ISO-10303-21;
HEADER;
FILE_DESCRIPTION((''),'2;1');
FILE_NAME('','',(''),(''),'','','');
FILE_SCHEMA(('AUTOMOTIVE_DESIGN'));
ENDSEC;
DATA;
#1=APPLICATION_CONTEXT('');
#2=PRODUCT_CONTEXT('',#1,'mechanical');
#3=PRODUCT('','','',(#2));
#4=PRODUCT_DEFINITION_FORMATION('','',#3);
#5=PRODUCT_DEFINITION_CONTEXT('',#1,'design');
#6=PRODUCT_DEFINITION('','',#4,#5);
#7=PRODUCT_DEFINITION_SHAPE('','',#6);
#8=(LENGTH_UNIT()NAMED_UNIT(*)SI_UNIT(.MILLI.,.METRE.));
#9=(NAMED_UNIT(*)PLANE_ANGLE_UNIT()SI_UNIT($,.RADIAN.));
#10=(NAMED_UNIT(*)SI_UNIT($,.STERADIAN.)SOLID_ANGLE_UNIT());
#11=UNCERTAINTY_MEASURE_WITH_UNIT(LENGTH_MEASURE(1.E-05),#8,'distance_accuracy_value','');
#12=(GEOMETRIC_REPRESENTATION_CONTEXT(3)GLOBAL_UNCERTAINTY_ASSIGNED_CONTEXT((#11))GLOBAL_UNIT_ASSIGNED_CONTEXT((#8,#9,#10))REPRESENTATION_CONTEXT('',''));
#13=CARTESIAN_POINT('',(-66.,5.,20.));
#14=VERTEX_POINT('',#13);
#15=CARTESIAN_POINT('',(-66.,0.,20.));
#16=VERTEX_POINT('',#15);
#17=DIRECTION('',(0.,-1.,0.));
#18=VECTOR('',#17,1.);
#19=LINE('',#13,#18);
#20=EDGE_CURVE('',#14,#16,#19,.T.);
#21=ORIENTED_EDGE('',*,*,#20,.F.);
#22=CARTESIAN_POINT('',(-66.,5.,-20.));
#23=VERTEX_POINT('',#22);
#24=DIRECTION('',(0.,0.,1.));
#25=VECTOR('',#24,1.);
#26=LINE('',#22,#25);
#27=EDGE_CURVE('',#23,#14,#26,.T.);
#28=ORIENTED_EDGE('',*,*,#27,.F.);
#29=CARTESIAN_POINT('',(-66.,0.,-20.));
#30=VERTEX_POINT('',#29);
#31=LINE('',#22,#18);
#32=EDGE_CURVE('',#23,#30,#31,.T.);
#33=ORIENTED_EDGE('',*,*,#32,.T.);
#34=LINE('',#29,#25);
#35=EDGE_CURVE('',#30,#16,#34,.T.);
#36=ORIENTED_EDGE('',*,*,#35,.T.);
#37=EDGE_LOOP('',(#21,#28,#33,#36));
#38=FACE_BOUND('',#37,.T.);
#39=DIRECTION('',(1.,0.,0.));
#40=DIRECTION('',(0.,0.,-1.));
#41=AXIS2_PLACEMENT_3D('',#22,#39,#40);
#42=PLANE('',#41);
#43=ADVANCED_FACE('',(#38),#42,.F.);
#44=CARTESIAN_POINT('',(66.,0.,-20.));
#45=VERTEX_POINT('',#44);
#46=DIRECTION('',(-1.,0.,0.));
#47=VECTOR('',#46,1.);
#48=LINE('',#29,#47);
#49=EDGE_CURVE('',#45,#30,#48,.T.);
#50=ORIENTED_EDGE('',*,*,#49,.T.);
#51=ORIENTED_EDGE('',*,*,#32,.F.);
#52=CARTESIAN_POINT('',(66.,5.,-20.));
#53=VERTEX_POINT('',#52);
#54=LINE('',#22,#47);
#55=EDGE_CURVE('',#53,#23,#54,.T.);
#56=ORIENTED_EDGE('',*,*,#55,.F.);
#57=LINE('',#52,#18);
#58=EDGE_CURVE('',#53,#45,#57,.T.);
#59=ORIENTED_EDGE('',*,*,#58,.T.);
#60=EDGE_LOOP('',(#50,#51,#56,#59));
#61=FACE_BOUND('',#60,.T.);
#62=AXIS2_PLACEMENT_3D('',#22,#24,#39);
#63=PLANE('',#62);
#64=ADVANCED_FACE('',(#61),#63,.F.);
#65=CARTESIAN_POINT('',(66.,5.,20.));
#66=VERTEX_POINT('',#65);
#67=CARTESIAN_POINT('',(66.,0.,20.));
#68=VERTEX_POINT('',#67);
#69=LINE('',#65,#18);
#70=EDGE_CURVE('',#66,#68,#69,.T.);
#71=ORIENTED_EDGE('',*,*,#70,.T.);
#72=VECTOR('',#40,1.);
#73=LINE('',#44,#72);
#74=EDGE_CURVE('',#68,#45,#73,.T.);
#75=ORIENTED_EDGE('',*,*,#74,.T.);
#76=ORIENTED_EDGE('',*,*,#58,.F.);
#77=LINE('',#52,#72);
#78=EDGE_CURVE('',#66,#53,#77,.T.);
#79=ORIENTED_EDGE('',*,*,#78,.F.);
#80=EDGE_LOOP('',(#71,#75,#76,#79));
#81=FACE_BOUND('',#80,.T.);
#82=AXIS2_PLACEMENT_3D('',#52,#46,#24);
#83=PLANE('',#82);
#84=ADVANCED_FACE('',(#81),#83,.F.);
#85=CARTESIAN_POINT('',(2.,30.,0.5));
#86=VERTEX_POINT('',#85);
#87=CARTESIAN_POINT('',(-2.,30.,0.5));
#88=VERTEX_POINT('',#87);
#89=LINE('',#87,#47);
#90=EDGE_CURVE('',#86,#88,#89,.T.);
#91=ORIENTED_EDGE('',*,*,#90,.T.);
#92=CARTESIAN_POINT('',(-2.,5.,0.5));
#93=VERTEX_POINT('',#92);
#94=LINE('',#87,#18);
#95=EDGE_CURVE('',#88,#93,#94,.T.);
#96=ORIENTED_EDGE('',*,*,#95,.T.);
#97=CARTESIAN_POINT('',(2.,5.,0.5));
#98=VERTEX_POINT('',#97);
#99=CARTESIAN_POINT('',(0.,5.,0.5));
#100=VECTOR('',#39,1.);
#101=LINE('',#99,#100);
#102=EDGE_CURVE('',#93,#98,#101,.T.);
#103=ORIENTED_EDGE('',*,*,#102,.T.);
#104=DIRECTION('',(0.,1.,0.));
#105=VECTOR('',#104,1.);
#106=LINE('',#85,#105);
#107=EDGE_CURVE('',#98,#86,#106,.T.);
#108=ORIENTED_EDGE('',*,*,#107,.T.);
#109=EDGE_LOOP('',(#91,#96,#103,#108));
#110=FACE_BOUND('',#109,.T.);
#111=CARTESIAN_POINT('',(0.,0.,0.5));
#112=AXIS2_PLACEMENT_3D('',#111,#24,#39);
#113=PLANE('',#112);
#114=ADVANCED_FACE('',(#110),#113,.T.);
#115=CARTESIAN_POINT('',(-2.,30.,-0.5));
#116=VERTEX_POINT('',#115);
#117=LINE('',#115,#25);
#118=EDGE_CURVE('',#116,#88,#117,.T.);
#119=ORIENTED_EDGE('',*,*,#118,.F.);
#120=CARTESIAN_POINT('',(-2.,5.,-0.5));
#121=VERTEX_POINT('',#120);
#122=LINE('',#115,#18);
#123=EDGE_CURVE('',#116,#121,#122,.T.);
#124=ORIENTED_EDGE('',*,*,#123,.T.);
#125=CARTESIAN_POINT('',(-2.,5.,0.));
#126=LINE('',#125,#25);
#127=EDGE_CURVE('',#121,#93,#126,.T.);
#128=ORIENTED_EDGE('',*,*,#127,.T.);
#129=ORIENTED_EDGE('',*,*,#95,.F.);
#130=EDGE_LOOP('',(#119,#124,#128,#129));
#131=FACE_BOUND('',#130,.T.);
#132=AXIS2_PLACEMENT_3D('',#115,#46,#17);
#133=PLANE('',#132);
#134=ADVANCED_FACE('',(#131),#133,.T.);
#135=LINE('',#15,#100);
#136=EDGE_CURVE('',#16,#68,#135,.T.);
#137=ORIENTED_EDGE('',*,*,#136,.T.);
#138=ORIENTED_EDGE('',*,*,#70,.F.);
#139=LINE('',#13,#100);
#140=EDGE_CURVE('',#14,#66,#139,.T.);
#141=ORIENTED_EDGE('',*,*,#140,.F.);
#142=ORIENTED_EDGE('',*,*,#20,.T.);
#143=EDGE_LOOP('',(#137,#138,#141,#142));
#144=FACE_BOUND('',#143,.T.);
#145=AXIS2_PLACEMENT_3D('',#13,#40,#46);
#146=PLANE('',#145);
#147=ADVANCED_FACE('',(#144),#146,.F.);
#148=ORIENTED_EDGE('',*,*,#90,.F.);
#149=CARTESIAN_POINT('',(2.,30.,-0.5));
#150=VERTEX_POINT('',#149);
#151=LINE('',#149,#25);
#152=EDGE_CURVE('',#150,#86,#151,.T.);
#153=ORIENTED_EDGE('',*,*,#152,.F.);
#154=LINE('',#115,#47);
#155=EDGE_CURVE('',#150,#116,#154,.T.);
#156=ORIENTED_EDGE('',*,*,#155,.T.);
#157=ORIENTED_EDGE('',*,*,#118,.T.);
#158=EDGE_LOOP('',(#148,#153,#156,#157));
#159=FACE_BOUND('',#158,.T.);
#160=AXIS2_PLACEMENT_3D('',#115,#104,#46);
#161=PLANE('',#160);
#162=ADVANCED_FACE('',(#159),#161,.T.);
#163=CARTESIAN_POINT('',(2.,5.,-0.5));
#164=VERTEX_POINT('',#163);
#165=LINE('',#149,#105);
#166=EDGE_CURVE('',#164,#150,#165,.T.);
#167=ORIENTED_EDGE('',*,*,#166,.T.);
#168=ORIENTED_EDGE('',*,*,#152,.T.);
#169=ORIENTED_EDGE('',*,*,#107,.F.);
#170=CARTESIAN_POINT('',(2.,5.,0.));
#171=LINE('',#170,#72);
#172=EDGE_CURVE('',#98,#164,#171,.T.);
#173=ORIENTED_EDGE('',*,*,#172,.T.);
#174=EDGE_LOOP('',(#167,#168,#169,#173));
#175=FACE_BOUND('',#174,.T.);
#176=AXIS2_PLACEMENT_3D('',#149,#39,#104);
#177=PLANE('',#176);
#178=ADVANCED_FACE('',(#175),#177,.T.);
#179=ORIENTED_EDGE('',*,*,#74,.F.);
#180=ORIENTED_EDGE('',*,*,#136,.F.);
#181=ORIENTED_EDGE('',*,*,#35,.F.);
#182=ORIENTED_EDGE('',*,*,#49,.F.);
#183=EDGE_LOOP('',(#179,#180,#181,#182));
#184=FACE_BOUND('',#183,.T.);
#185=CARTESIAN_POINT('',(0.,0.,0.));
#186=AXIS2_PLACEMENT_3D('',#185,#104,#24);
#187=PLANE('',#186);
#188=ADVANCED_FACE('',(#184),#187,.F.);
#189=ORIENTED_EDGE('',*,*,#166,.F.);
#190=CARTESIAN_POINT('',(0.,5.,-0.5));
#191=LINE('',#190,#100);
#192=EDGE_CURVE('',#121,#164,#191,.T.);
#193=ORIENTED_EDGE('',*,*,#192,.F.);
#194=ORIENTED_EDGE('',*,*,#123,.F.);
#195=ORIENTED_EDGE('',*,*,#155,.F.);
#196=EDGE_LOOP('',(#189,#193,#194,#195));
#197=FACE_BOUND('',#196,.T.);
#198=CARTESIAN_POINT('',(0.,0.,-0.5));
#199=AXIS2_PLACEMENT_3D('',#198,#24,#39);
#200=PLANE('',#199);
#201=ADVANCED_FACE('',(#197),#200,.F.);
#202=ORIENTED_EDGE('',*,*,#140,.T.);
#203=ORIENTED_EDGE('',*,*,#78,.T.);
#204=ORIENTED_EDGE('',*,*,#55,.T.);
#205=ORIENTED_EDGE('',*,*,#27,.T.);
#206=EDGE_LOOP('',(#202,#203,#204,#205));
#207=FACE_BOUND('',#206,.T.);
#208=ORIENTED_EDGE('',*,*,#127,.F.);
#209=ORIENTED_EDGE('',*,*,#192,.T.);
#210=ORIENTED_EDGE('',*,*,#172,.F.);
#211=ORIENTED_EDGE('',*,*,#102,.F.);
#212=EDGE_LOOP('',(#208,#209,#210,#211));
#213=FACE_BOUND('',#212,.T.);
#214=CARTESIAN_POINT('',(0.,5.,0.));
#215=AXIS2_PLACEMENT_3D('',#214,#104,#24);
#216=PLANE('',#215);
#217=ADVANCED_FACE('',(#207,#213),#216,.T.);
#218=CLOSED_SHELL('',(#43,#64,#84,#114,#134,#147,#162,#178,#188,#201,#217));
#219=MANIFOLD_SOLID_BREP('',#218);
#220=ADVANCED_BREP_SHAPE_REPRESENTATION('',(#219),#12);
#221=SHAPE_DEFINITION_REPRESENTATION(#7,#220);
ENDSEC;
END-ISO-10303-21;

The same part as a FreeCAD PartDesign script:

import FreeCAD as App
import Part
import Sketcher
from FreeCAD import Vector
Q = App.Units.Quantity

doc = App.newDocument("Part")
body = doc.addObject("PartDesign::Body", "Body")

# Sketch on XZ plane
sketch1 = body.newObject("Sketcher::SketchObject", "Sketch")
sketch1.AttachmentSupport = (doc.getObject("XZ_Plane"), [""])
sketch1.MapMode = "FlatFace"
sketch1.addGeometry(Part.LineSegment(Vector(-66, -20, 0), Vector(-66, 20, 0)), False)
sketch1.addGeometry(Part.LineSegment(Vector(-66, 20, 0), Vector(66, 20, 0)), False)
sketch1.addGeometry(Part.LineSegment(Vector(66, 20, 0), Vector(66, -20, 0)), False)
sketch1.addGeometry(Part.LineSegment(Vector(66, -20, 0), Vector(-66, -20, 0)), False)
sketch1.addConstraint(Sketcher.Constraint("Coincident", 0, 2, 1, 1))
sketch1.addConstraint(Sketcher.Constraint("Coincident", 1, 2, 2, 1))
sketch1.addConstraint(Sketcher.Constraint("Coincident", 2, 2, 3, 1))
sketch1.addConstraint(Sketcher.Constraint("Coincident", 3, 2, 0, 1))
sketch1.addConstraint(Sketcher.Constraint("Vertical", 0))
sketch1.addConstraint(Sketcher.Constraint("Horizontal", 1))
sketch1.addConstraint(Sketcher.Constraint("Vertical", 2))
sketch1.addConstraint(Sketcher.Constraint("Horizontal", 3))
sketch1.addConstraint(Sketcher.Constraint("Symmetric", 0, 2, 2, 2, -1, 1))
sketch1.addConstraint(Sketcher.Constraint("DistanceX", 1, 1, 1, 2, Q("132 mm")))
sketch1.addConstraint(Sketcher.Constraint("DistanceY", 0, 1, 0, 2, Q("40 mm")))
pad1 = body.newObject("PartDesign::Pad", "Pad")
pad1.Profile = sketch1
pad1.Length = 5
pad1.Reversed = True

# Sketch on XY plane
sketch2 = body.newObject("Sketcher::SketchObject", "Sketch001")
sketch2.AttachmentSupport = (doc.getObject("XY_Plane"), [""])
sketch2.MapMode = "FlatFace"
sketch2.addGeometry(Part.LineSegment(Vector(-2, 30, 0), Vector(-2, 0, 0)), False)
sketch2.addGeometry(Part.LineSegment(Vector(-2, 0, 0), Vector(2, 0, 0)), False)
sketch2.addGeometry(Part.LineSegment(Vector(2, 0, 0), Vector(2, 30, 0)), False)
sketch2.addGeometry(Part.LineSegment(Vector(2, 30, 0), Vector(-2, 30, 0)), False)
sketch2.addConstraint(Sketcher.Constraint("Coincident", 0, 2, 1, 1))
sketch2.addConstraint(Sketcher.Constraint("Coincident", 1, 2, 2, 1))
sketch2.addConstraint(Sketcher.Constraint("Coincident", 2, 2, 3, 1))
sketch2.addConstraint(Sketcher.Constraint("Coincident", 3, 2, 0, 1))
sketch2.addConstraint(Sketcher.Constraint("Vertical", 0))
sketch2.addConstraint(Sketcher.Constraint("Horizontal", 1))
sketch2.addConstraint(Sketcher.Constraint("Vertical", 2))
sketch2.addConstraint(Sketcher.Constraint("Horizontal", 3))
sketch2.addConstraint(Sketcher.Constraint("Symmetric", 0, 2, 1, 2, -1, 1))
sketch2.addConstraint(Sketcher.Constraint("DistanceX", 1, 1, 1, 2, Q("4 mm")))
sketch2.addConstraint(Sketcher.Constraint("DistanceY", 0, 2, 0, 1, Q("30 mm")))
pad2 = body.newObject("PartDesign::Pad", "Pad001")
pad2.Profile = sketch2
pad2.Type = "TwoLengths"
pad2.Length = 0.5
pad2.Length2 = 0.5

doc.recompute()
